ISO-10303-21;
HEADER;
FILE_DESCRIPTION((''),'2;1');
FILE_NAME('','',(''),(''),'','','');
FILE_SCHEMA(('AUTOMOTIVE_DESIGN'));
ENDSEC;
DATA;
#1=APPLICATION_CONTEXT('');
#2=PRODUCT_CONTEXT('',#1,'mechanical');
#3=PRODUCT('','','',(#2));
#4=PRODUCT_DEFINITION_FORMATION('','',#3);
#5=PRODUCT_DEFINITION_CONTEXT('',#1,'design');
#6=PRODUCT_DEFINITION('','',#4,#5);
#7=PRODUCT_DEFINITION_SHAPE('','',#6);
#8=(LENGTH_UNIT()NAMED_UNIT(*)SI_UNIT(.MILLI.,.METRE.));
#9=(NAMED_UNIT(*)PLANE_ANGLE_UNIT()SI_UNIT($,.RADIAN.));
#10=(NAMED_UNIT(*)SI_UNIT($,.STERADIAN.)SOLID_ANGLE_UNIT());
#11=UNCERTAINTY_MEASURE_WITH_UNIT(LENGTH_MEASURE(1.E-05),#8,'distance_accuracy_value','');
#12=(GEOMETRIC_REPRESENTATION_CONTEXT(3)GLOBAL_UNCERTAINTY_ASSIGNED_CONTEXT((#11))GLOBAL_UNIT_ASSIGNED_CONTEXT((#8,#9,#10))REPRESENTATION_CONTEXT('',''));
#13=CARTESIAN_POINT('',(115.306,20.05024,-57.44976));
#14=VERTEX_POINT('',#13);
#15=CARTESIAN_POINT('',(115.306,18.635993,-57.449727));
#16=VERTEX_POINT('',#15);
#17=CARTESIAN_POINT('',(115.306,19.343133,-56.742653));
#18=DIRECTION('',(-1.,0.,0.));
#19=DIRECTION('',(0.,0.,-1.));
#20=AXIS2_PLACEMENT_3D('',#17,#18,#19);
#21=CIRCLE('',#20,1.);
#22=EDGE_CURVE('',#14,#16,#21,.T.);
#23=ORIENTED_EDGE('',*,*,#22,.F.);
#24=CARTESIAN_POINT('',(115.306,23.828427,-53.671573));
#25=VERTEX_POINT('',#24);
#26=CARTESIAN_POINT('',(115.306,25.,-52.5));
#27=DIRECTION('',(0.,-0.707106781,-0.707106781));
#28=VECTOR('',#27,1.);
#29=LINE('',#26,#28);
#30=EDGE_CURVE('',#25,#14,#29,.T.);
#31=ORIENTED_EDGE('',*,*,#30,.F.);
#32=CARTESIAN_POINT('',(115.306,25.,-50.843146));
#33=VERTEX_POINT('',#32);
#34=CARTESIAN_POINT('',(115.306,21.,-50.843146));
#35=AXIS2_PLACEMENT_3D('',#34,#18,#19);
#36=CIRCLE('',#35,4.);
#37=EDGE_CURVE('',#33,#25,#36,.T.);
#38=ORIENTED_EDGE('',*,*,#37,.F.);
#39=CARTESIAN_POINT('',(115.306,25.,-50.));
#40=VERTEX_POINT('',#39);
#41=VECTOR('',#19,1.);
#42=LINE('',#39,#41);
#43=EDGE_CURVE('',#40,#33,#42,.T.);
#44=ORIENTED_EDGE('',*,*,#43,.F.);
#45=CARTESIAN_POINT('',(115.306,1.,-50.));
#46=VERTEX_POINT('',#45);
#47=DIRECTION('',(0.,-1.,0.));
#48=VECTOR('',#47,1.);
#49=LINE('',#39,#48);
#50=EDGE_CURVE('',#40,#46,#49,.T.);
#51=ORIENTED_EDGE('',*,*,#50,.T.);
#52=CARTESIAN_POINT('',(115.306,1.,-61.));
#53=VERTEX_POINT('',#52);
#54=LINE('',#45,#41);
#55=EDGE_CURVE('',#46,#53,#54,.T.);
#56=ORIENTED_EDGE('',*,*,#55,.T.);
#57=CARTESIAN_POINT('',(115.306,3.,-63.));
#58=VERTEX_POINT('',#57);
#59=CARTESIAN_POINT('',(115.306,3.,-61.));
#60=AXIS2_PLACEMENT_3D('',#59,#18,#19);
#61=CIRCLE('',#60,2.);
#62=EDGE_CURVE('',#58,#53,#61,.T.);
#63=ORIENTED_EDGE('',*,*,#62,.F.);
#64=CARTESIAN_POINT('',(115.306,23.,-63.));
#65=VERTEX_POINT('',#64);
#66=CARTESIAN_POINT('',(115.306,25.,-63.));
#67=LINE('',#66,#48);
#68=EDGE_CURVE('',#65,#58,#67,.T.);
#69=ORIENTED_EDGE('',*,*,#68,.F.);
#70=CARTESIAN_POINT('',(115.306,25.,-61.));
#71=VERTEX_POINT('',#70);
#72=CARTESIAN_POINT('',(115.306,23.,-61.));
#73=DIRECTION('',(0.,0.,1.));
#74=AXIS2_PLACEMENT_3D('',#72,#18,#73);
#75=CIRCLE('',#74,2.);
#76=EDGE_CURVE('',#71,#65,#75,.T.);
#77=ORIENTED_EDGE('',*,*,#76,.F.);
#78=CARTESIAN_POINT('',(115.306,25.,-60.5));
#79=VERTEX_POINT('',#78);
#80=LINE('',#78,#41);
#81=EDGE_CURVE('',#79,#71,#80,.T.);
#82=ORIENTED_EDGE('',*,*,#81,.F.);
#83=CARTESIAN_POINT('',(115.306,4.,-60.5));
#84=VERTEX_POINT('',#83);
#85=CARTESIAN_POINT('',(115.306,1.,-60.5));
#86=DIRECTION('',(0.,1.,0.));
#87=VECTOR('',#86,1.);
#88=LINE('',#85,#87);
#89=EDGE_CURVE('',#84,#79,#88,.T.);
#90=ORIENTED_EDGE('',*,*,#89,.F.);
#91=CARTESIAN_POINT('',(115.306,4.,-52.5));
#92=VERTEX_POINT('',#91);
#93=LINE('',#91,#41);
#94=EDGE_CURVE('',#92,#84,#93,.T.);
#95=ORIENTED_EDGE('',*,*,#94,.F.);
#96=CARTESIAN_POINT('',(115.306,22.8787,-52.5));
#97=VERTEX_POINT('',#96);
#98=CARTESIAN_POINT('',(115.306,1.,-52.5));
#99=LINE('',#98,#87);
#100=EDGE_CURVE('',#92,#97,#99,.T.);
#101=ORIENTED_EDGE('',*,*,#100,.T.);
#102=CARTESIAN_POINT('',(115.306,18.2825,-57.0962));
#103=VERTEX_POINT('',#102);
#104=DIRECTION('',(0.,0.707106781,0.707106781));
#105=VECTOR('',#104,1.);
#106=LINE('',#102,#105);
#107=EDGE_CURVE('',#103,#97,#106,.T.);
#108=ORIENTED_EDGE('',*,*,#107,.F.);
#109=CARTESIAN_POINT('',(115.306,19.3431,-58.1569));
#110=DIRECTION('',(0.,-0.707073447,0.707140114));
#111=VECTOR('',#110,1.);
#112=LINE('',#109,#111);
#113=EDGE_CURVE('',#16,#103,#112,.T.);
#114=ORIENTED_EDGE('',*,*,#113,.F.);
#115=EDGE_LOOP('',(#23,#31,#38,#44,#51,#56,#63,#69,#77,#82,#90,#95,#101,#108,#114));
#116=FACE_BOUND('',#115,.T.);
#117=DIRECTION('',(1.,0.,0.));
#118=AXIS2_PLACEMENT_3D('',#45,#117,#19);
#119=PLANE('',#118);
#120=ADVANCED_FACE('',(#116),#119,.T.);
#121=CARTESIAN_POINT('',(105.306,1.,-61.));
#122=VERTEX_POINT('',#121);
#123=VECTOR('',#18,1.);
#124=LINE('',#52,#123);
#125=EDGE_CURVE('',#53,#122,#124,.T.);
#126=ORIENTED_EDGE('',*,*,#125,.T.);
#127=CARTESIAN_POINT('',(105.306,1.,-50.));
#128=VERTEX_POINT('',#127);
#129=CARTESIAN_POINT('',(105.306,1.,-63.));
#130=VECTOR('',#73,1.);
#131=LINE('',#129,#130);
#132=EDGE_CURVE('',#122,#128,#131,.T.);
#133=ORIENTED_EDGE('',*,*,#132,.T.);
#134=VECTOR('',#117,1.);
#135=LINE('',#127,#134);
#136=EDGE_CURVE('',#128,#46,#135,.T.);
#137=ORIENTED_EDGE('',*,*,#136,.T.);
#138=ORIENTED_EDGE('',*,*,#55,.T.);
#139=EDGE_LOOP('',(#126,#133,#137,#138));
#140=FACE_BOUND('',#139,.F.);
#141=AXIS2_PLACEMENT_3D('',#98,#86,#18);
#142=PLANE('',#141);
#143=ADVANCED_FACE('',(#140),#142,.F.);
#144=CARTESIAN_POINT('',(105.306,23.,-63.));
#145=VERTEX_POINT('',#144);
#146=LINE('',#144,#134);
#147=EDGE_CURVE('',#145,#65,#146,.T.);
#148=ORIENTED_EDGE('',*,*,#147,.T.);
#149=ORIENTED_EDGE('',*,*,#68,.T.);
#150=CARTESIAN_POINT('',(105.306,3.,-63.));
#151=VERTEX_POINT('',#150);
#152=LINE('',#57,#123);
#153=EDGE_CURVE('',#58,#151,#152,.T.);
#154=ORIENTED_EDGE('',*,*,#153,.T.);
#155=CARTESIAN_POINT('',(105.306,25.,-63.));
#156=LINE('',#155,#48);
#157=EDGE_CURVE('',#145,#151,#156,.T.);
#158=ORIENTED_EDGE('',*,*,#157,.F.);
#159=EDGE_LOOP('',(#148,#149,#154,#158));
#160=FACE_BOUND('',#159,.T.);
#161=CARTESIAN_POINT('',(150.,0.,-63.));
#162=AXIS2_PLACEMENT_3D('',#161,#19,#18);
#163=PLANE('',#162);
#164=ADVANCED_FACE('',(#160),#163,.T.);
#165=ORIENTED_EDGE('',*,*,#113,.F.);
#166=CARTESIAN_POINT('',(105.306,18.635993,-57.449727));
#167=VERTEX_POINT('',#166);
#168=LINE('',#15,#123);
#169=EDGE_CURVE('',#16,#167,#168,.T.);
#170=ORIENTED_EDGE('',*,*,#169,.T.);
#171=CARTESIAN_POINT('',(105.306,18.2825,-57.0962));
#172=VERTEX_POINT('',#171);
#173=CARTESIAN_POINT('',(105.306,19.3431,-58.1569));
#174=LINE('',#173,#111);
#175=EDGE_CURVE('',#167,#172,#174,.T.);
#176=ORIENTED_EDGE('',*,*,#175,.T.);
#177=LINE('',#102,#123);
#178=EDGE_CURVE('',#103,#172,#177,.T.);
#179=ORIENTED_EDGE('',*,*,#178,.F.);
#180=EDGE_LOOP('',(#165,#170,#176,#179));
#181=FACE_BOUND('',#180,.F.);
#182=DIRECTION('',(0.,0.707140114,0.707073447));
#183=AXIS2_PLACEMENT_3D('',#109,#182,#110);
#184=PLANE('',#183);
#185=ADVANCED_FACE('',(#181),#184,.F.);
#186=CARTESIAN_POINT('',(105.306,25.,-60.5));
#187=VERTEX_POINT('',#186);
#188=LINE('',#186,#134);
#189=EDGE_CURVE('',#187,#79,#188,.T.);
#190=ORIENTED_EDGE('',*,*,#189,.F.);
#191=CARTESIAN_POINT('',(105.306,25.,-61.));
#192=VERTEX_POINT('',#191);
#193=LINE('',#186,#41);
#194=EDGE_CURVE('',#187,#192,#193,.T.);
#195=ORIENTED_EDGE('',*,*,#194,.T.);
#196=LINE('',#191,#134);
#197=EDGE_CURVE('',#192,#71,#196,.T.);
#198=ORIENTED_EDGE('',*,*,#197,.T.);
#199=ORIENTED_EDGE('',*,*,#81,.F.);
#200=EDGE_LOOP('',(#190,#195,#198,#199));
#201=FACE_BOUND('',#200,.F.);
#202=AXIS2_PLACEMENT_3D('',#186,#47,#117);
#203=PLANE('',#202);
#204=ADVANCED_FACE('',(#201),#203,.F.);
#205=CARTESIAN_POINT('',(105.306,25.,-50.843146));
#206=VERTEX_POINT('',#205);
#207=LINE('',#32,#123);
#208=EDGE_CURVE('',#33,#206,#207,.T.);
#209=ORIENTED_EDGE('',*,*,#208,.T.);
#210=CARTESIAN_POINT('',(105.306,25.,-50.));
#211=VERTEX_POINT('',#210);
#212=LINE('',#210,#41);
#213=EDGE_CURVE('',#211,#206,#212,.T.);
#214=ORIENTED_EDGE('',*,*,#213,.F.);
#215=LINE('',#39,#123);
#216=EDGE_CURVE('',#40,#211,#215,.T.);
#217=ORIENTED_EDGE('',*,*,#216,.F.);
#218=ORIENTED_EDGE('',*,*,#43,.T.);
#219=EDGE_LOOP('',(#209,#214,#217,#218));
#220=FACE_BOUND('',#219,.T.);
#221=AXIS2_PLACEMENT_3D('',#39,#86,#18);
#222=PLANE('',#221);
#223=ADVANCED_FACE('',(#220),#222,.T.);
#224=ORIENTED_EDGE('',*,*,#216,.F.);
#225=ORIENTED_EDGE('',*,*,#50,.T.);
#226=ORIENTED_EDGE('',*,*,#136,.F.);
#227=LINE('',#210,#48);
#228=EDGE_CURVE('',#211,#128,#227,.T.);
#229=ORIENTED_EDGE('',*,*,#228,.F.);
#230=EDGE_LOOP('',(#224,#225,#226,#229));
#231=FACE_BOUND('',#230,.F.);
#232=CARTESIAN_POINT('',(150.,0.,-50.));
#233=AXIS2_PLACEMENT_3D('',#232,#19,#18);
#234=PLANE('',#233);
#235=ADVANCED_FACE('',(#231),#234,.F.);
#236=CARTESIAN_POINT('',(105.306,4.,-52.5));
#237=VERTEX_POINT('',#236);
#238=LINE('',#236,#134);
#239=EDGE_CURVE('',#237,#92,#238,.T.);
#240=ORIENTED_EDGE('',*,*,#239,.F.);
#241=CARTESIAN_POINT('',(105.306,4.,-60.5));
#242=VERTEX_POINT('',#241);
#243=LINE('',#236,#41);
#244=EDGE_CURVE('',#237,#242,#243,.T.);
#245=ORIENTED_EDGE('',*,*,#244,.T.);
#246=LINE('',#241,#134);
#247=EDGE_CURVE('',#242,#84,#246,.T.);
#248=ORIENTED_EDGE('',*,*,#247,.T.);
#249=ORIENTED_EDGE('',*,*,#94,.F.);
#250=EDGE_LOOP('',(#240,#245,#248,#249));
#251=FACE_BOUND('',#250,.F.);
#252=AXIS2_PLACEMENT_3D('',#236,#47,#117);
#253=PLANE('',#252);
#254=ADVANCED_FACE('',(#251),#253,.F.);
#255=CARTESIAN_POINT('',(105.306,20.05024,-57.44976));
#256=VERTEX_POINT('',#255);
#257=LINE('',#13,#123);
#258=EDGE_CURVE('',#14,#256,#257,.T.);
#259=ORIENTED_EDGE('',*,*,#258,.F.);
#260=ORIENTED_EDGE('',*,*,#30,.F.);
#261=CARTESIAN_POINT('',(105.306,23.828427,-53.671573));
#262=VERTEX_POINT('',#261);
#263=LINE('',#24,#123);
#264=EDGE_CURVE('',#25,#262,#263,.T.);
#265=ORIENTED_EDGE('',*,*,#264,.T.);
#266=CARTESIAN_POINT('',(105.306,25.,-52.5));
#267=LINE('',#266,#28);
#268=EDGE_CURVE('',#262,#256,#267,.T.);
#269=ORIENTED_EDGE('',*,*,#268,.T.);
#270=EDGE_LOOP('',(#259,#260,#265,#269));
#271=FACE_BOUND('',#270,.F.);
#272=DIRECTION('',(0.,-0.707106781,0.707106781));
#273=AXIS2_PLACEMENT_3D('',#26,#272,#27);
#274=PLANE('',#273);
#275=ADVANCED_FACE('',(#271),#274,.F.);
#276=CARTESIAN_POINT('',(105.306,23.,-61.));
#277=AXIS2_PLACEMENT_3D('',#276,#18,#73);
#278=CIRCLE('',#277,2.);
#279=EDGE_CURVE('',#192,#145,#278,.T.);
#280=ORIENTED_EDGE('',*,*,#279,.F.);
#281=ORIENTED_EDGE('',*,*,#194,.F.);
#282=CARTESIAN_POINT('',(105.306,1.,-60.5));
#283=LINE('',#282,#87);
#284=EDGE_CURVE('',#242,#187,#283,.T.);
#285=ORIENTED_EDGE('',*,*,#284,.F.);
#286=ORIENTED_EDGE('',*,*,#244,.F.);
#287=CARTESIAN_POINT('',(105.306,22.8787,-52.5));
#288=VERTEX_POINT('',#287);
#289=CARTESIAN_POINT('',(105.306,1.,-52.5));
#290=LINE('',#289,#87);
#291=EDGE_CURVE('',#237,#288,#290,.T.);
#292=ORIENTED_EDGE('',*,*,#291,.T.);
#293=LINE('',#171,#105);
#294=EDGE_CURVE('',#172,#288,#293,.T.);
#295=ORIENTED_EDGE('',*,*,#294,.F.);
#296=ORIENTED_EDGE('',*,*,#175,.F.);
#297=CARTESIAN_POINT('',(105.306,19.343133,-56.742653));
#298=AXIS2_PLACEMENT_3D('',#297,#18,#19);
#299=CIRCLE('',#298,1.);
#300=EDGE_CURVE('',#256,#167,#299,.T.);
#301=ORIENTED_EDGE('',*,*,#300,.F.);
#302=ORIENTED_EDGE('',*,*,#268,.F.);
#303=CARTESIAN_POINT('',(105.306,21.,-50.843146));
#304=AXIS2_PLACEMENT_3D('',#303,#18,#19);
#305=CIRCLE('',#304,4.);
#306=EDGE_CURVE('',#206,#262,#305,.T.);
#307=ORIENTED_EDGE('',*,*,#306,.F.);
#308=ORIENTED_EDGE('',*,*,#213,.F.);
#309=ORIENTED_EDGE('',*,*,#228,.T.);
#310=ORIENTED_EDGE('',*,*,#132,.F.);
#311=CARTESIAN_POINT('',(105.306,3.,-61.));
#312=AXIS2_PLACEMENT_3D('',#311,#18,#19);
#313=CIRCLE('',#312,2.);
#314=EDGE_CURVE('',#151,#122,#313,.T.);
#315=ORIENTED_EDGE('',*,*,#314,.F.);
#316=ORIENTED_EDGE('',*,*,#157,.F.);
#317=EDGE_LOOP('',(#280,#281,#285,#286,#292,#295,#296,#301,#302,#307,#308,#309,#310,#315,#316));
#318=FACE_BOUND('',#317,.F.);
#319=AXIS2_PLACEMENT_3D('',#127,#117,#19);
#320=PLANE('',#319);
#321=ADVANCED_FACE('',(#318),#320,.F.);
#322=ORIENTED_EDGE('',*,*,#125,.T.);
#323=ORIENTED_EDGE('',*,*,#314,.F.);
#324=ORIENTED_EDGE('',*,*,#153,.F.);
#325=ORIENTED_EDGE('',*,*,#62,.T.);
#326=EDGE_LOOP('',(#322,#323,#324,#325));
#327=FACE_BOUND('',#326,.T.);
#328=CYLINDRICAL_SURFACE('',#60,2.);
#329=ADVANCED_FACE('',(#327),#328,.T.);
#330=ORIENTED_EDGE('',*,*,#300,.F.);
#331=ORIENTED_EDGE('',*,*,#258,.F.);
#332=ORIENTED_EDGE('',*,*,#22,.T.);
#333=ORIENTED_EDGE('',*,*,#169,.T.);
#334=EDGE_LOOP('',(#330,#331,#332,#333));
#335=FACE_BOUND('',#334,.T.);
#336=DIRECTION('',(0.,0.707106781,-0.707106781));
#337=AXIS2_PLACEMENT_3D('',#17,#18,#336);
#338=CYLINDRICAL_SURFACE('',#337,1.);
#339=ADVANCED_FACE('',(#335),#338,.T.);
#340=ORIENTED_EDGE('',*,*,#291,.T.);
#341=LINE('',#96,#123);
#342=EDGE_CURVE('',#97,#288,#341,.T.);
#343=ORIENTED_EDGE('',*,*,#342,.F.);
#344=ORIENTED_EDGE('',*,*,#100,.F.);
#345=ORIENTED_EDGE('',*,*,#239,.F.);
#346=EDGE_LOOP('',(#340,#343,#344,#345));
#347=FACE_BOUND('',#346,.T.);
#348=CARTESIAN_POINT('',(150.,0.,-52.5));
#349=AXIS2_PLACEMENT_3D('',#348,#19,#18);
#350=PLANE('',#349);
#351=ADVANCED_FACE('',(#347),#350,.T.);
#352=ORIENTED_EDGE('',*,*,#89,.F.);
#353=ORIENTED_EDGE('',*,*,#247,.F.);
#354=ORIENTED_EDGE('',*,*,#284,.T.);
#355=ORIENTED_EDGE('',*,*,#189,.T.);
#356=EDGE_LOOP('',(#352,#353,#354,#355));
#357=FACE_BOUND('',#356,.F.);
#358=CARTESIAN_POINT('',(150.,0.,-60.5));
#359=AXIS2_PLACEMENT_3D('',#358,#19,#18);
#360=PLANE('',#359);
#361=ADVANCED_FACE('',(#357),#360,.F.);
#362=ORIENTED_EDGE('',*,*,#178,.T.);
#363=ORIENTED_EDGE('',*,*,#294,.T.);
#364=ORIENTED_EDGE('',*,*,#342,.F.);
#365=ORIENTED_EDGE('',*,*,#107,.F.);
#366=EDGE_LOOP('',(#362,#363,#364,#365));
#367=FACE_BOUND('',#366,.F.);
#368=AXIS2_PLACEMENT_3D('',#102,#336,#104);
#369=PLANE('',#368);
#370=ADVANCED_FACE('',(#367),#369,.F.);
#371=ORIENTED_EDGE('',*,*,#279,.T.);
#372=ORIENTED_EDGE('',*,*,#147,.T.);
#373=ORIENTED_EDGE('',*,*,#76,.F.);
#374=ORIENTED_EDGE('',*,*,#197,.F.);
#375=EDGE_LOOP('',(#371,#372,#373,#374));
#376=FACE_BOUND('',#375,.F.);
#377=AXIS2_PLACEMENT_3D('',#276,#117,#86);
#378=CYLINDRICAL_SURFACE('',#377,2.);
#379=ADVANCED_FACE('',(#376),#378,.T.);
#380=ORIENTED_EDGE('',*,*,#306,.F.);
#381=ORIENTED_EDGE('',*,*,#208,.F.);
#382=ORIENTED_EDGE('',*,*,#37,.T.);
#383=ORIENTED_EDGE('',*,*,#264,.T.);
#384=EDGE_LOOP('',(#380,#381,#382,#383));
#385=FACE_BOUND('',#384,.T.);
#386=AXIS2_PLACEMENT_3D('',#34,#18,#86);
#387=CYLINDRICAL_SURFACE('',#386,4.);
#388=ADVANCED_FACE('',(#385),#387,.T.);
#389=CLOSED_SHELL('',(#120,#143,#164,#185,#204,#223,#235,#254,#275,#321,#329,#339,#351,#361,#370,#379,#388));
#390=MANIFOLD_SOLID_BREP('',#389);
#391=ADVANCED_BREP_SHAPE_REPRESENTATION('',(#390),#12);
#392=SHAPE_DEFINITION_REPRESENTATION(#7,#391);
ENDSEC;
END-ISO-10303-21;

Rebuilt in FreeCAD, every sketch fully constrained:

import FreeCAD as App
import Part
import Sketcher
from FreeCAD import Vector
Q = App.Units.Quantity


def edges_at(feature, points):
    """Names of the edges that pass closest to the given points."""
    edges = feature.Shape.Edges
    near = lambda p: min(range(len(edges)), key=lambda i: edges[i].distToShape(Part.Vertex(*p))[0])
    return sorted({f"Edge{near(p) + 1}" for p in points})

doc = App.newDocument("Part")
body = doc.addObject("PartDesign::Body", "Body")

# Sketch on XY plane
sketch1 = doc.addObject("Sketcher::SketchObject", "Sketch")
body.addObject(sketch1)
sketch1.AttachmentSupport = (doc.XY_Plane, [""])
sketch1.MapMode = "FlatFace"
sketch1.AttachmentOffset = App.Placement(Vector(0, 0, -50), App.Rotation())
sketch1.addGeometry([
    Part.LineSegment(Vector(115.306, 25, 0), Vector(115.306, 1, 0)),
    Part.LineSegment(Vector(115.306, 1, 0), Vector(105.306, 1, 0)),
    Part.LineSegment(Vector(105.306, 1, 0), Vector(105.306, 25, 0)),
    Part.LineSegment(Vector(105.306, 25, 0), Vector(115.306, 25, 0)),
], False)
sketch1.addConstraint([
    Sketcher.Constraint("Coincident", 0, 2, 1, 1),
    Sketcher.Constraint("Coincident", 1, 2, 2, 1),
    Sketcher.Constraint("Coincident", 2, 2, 3, 1),
    Sketcher.Constraint("Coincident", 3, 2, 0, 1),
    Sketcher.Constraint("Vertical", 0),
    Sketcher.Constraint("Horizontal", 1),
    Sketcher.Constraint("Vertical", 2),
    Sketcher.Constraint("Horizontal", 3),
    Sketcher.Constraint("DistanceX", 1, 2, 1, 1, 10.0),
    Sketcher.Constraint("DistanceY", 0, 2, 0, 1, 24.0),
    Sketcher.Constraint("DistanceY", -1, 1, 0, 2, 1.0),
    Sketcher.Constraint("DistanceX", -1, 1, 0, 2, 115.306),
])
pad1 = doc.addObject("PartDesign::Pad", "Pad")
body.addObject(pad1)
pad1.Profile = sketch1
pad1.Length = 2.5
pad1.Reversed = True

# Sketch on XY plane
sketch2 = doc.addObject("Sketcher::SketchObject", "Sketch001")
body.addObject(sketch2)
sketch2.AttachmentSupport = (doc.XY_Plane, [""])
sketch2.MapMode = "FlatFace"
sketch2.AttachmentOffset = App.Placement(Vector(0, 0, -52.5), App.Rotation())
sketch2.addGeometry([
    Part.LineSegment(Vector(105.306, 4, 0), Vector(115.306, 4, 0)),
    Part.LineSegment(Vector(115.306, 4, 0), Vector(115.306, 1, 0)),
    Part.LineSegment(Vector(115.306, 1, 0), Vector(105.306, 1, 0)),
    Part.LineSegment(Vector(105.306, 1, 0), Vector(105.306, 4, 0)),
], False)
sketch2.addConstraint([
    Sketcher.Constraint("Coincident", 0, 2, 1, 1),
    Sketcher.Constraint("Coincident", 1, 2, 2, 1),
    Sketcher.Constraint("Coincident", 2, 2, 3, 1),
    Sketcher.Constraint("Coincident", 3, 2, 0, 1),
    Sketcher.Constraint("Horizontal", 0),
    Sketcher.Constraint("Vertical", 1),
    Sketcher.Constraint("Horizontal", 2),
    Sketcher.Constraint("Vertical", 3),
    Sketcher.Constraint("DistanceY", 1, 2, 1, 1, 3.0),
    Sketcher.Constraint("DistanceX", 0, 1, 0, 2, 10.0),
    Sketcher.Constraint("DistanceY", -1, 1, 0, 2, 4.0),
    Sketcher.Constraint("DistanceX", -1, 1, 0, 2, 115.306),
])
pad2 = doc.addObject("PartDesign::Pad", "Pad001")
body.addObject(pad2)
pad2.Profile = sketch2
pad2.Length = 8
pad2.Reversed = True

# Sketch on XY plane
sketch3 = doc.addObject("Sketcher::SketchObject", "Sketch002")
body.addObject(sketch3)
sketch3.AttachmentSupport = (doc.XY_Plane, [""])
sketch3.MapMode = "FlatFace"
sketch3.AttachmentOffset = App.Placement(Vector(0, 0, -60.5), App.Rotation())
sketch3.addGeometry([
    Part.LineSegment(Vector(105.306, 1, 0), Vector(105.306, 25, 0)),
    Part.LineSegment(Vector(105.306, 25, 0), Vector(115.306, 25, 0)),
    Part.LineSegment(Vector(115.306, 25, 0), Vector(115.306, 1, 0)),
    Part.LineSegment(Vector(115.306, 1, 0), Vector(105.306, 1, 0)),
], False)
sketch3.addConstraint([
    Sketcher.Constraint("Coincident", 0, 2, 1, 1),
    Sketcher.Constraint("Coincident", 1, 2, 2, 1),
    Sketcher.Constraint("Coincident", 2, 2, 3, 1),
    Sketcher.Constraint("Coincident", 3, 2, 0, 1),
    Sketcher.Constraint("Vertical", 0),
    Sketcher.Constraint("Horizontal", 1),
    Sketcher.Constraint("Vertical", 2),
    Sketcher.Constraint("Horizontal", 3),
    Sketcher.Constraint("DistanceX", 1, 1, 1, 2, 10.0),
    Sketcher.Constraint("DistanceY", 0, 1, 0, 2, 24.0),
    Sketcher.Constraint("DistanceY", -1, 1, 0, 2, 25.0),
    Sketcher.Constraint("DistanceX", -1, 1, 0, 2, 105.306),
])
pad3 = doc.addObject("PartDesign::Pad", "Pad002")
body.addObject(pad3)
pad3.Profile = sketch3
pad3.Length = 2.5
pad3.Reversed = True

# Sketch on YZ plane
sketch4 = doc.addObject("Sketcher::SketchObject", "Sketch003")
body.addObject(sketch4)
sketch4.AttachmentSupport = (doc.YZ_Plane, [""])
sketch4.MapMode = "FlatFace"
sketch4.AttachmentOffset = App.Placement(Vector(0, 0, 115.306), App.Rotation())
sketch4.addGeometry([
    Part.LineSegment(Vector(25, -52.5, 0), Vector(22.8787, -52.5, 0)),
    Part.LineSegment(Vector(22.8787, -52.5, 0), Vector(18.2825, -57.0962, 0)),
    Part.LineSegment(Vector(18.2825, -57.0962, 0), Vector(19.3431, -58.1569, 0)),
    Part.LineSegment(Vector(19.3431, -58.1569, 0), Vector(25, -52.5, 0)),
], False)
sketch4.addConstraint([
    Sketcher.Constraint("Coincident", 0, 2, 1, 1),
    Sketcher.Constraint("Coincident", 1, 2, 2, 1),
    Sketcher.Constraint("Coincident", 2, 2, 3, 1),
    Sketcher.Constraint("Coincident", 3, 2, 0, 1),
    Sketcher.Constraint("Horizontal", 0),
    Sketcher.Constraint("Perpendicular", 1, 2),
    Sketcher.Constraint("Perpendicular", 2, 3),
    Sketcher.Constraint("Angle", 3, Q("45 deg")),
    Sketcher.Constraint("Distance", 3, 8.0),
    Sketcher.Constraint("Distance", 2, 1.5),
    Sketcher.Constraint("DistanceX", -1, 1, 3, 2, 25.0),
    Sketcher.Constraint("DistanceY", 0, 2, -1, 1, 52.5),
])
pad4 = doc.addObject("PartDesign::Pad", "Pad003")
body.addObject(pad4)
pad4.Profile = sketch4
pad4.Length = 10
pad4.Reversed = True
doc.recompute()

fillet = doc.addObject("PartDesign::Fillet", "Fillet")
body.addObject(fillet)
fillet.Base = (pad4, edges_at(pad4, [(110.306, 25, -63), (110.306, 1, -63)]))
fillet.Radius = 2
doc.recompute()

fillet2 = doc.addObject("PartDesign::Fillet", "Fillet001")
body.addObject(fillet2)
fillet2.Base = (fillet, edges_at(fillet, [(110.306, 25, -52.5)]))
fillet2.Radius = 4
doc.recompute()

fillet3 = doc.addObject("PartDesign::Fillet", "Fillet002")
body.addObject(fillet3)
fillet3.Base = (fillet2, edges_at(fillet2, [(110.306, 19.343, -58.157)]))
fillet3.Radius = 1

doc.recompute()
